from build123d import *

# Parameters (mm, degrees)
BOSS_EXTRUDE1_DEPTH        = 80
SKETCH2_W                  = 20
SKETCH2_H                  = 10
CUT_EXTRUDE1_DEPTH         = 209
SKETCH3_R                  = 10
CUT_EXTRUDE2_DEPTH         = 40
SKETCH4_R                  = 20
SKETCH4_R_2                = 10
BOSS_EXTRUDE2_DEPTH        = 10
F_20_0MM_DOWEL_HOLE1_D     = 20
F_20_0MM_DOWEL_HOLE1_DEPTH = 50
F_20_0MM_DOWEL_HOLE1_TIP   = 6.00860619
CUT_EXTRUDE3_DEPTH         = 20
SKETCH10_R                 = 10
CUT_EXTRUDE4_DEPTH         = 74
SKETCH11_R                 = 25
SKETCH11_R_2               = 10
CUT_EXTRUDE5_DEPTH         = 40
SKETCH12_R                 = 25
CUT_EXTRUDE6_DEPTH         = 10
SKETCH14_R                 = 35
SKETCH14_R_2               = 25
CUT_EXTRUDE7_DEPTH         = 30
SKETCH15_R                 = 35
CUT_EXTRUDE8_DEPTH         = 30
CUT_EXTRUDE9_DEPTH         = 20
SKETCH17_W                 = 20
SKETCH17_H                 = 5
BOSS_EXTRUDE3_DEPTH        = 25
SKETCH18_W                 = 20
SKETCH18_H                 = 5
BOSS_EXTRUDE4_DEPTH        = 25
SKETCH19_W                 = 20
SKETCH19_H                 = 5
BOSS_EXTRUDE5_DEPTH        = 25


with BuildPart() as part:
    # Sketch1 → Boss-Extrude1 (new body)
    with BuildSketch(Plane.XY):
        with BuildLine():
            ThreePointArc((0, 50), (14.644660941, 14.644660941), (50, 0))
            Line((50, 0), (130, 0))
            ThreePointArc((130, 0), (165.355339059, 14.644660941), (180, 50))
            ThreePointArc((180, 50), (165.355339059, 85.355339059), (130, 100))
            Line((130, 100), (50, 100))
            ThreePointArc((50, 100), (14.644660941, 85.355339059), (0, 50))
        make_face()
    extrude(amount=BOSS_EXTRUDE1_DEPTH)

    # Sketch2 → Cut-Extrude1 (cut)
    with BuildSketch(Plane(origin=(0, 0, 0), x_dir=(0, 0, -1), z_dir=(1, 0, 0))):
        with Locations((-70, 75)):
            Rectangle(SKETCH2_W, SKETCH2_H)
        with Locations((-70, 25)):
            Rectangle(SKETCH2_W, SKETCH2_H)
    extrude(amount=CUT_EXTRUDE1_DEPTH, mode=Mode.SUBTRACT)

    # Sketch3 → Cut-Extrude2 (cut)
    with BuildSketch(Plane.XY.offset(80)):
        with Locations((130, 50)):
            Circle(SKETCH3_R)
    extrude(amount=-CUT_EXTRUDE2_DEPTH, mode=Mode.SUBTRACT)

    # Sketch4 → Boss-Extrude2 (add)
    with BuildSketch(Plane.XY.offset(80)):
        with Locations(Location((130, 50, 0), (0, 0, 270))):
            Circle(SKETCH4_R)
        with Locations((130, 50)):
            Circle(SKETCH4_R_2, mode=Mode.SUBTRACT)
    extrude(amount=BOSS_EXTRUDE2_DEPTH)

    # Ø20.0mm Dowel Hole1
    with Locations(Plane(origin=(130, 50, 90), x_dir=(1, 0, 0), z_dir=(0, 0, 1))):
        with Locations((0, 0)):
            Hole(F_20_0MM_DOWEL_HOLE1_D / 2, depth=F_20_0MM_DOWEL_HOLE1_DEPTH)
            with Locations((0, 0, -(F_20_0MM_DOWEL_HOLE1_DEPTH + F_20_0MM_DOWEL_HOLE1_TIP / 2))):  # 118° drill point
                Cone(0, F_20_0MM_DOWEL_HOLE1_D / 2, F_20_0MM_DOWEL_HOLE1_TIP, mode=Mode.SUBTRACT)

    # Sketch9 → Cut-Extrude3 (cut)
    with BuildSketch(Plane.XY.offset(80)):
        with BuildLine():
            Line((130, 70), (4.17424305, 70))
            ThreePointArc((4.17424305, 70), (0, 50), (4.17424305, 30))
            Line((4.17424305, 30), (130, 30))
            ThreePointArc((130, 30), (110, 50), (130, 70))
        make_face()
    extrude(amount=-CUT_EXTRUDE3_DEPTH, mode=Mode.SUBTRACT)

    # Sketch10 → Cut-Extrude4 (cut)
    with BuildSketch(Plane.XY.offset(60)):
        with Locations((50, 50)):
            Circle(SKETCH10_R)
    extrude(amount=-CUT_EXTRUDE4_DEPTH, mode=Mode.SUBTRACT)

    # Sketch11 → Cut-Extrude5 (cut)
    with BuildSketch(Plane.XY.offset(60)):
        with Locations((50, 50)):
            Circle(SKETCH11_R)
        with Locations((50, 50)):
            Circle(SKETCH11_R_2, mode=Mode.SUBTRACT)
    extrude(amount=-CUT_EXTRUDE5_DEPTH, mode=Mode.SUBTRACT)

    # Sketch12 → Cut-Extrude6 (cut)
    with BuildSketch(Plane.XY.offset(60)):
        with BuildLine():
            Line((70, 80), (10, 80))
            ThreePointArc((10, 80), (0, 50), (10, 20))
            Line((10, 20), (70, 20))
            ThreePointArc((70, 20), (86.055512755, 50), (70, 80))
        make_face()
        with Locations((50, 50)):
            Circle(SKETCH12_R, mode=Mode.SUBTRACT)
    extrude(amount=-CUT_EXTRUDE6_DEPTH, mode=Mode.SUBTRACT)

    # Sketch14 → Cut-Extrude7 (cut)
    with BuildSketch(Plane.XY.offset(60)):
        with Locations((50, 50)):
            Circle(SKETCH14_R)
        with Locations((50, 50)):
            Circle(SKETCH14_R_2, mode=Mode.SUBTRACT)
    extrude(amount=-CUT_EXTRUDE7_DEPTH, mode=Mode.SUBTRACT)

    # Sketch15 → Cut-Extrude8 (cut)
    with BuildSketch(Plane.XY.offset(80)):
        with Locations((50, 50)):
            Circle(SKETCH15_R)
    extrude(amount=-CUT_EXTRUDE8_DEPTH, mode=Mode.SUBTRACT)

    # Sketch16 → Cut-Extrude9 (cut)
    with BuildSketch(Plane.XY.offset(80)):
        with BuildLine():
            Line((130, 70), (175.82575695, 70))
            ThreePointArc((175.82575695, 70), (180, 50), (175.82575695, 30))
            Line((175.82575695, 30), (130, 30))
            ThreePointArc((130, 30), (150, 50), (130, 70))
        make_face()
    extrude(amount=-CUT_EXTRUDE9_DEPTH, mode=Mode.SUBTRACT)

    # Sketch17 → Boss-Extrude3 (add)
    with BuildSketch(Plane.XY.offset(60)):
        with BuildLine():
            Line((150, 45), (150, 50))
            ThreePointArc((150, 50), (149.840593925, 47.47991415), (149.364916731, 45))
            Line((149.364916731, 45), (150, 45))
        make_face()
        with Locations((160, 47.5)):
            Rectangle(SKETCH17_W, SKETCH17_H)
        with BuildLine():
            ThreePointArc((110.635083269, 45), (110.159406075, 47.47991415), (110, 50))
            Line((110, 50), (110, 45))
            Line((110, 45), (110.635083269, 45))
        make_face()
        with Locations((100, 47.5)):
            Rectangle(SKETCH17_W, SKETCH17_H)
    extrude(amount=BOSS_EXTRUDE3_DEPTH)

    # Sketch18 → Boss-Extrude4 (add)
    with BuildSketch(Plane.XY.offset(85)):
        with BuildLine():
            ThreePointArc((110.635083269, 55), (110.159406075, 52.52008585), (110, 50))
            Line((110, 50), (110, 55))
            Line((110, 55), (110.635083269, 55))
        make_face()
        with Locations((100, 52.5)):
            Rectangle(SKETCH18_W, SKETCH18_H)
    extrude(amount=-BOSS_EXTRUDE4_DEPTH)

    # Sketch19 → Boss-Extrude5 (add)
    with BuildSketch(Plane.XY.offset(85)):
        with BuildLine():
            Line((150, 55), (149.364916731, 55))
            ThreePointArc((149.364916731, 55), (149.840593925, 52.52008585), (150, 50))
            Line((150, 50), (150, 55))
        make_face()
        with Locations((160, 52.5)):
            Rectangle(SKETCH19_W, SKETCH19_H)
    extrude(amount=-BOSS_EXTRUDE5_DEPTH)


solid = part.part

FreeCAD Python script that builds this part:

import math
import FreeCAD as App
import Part
import Sketcher
from FreeCAD import Vector
Q = App.Units.Quantity


def add_polygon(sketch, points):
    """Adds a closed chain of lines whose ends are joined by coincident constraints."""
    first, n = sketch.GeometryCount, len(points)
    for a, b in zip(points, points[1:] + points[:1]):
        sketch.addGeometry(Part.LineSegment(App.Vector(*a, 0), App.Vector(*b, 0)), False)
    for i in range(n):
        sketch.addConstraint(Sketcher.Constraint("Coincident", first + i, 2, first + (i + 1) % n, 1))

doc = App.newDocument("Part")
body = doc.addObject("PartDesign::Body", "Body")

sketch1 = body.newObject("Sketcher::SketchObject", "Sketch")
sketch1.AttachmentSupport = (doc.getObject("XY_Plane"), [""])
sketch1.MapMode = "FlatFace"
sketch1.addGeometry([
    Part.ArcOfCircle(Part.Circle(Vector(50, 50, 0), Vector(0, 0, 1), 50), math.radians(-180), math.radians(-90)),
    Part.LineSegment(Vector(50, 0, 0), Vector(130, 0, 0)),
    Part.ArcOfCircle(Part.Circle(Vector(130, 50, 0), Vector(0, 0, 1), 50), math.radians(-90), math.radians(0)),
    Part.ArcOfCircle(Part.Circle(Vector(130, 50, 0), Vector(0, 0, 1), 50), math.radians(0), math.radians(90)),
    Part.LineSegment(Vector(130, 100, 0), Vector(50, 100, 0)),
    Part.ArcOfCircle(Part.Circle(Vector(50, 50, 0), Vector(0, 0, 1), 50), math.radians(90), math.radians(180)),
], False)
sketch1.addConstraint([
    Sketcher.Constraint("Tangent", 0, 2, 1, 1),
    Sketcher.Constraint("Tangent", 1, 2, 2, 1),
    Sketcher.Constraint("Tangent", 2, 2, 3, 1),
    Sketcher.Constraint("Tangent", 3, 2, 4, 1),
    Sketcher.Constraint("Tangent", 4, 2, 5, 1),
    Sketcher.Constraint("Tangent", 5, 2, 0, 1),
    Sketcher.Constraint("Horizontal", 1),
    Sketcher.Constraint("Horizontal", 4),
    Sketcher.Constraint("Equal", 0, 2),
    Sketcher.Constraint("Equal", 2, 3),
    Sketcher.Constraint("PointOnObject", 0, 2, -1),
    Sketcher.Constraint("PointOnObject", 5, 2, -2),
    Sketcher.Constraint("Horizontal", 5, 3, 2, 2),
    Sketcher.Constraint("Horizontal", 2, 2, 5, 2),
    Sketcher.Constraint("Radius", 0, Q("50 mm")),
    Sketcher.Constraint("DistanceX", 1, 1, 1, 2, Q("80 mm")),
])
pad1 = body.newObject("PartDesign::Pad", "Pad")
pad1.Profile = sketch1
pad1.Length = 80

sketch2 = body.newObject("Sketcher::SketchObject", "Sketch001")
sketch2.AttachmentSupport = (doc.getObject("YZ_Plane"), [""])
sketch2.MapMode = "FlatFace"
add_polygon(sketch2, [(80, 80), (70, 80), (70, 60), (80, 60)])
add_polygon(sketch2, [(30, 80), (20, 80), (20, 60), (30, 60)])
sketch2.addConstraint([
    Sketcher.Constraint("Horizontal", 0),
    Sketcher.Constraint("Vertical", 1),
    Sketcher.Constraint("Horizontal", 2),
    Sketcher.Constraint("Vertical", 3),
    Sketcher.Constraint("Horizontal", 4),
    Sketcher.Constraint("Vertical", 5),
    Sketcher.Constraint("Horizontal", 6),
    Sketcher.Constraint("Vertical", 7),
    Sketcher.Constraint("Horizontal", 3, 2, 4, 2),
    Sketcher.Constraint("Horizontal", 2, 2, 5, 2),
    Sketcher.Constraint("Equal", 2, 4),
    Sketcher.Constraint("DistanceX", 0, 2, 0, 1, Q("10 mm")),
    Sketcher.Constraint("DistanceY", 1, 2, 1, 1, Q("20 mm")),
    Sketcher.Constraint("DistanceX", -1, 1, 0, 2, Q("70 mm")),
    Sketcher.Constraint("DistanceY", -1, 1, 0, 2, Q("80 mm")),
    Sketcher.Constraint("DistanceX", -1, 1, 4, 2, Q("20 mm")),
])
pocket1 = body.newObject("PartDesign::Pocket", "Pocket")
pocket1.Profile = sketch2
pocket1.Length = 209
pocket1.Reversed = True

sketch3 = body.newObject("Sketcher::SketchObject", "Sketch002")
sketch3.AttachmentSupport = (doc.getObject("XY_Plane"), [""])
sketch3.MapMode = "FlatFace"
sketch3.AttachmentOffset = App.Placement(Vector(0, 0, 80), App.Rotation())
sketch3.addGeometry(Part.Circle(Vector(130, 50, 0), Vector(0, 0, 1), 10), False)
sketch3.addConstraint([
    Sketcher.Constraint("Diameter", 0, Q("20 mm")),
    Sketcher.Constraint("DistanceX", -1, 1, 0, 3, Q("130 mm")),
    Sketcher.Constraint("DistanceY", -1, 1, 0, 3, Q("50 mm")),
])
pocket2 = body.newObject("PartDesign::Pocket", "Pocket001")
pocket2.Profile = sketch3
pocket2.Length = 40

sketch4 = body.newObject("Sketcher::SketchObject", "Sketch003")
sketch4.AttachmentSupport = (doc.getObject("XY_Plane"), [""])
sketch4.MapMode = "FlatFace"
sketch4.AttachmentOffset = App.Placement(Vector(0, 0, 80), App.Rotation())
sketch4.addGeometry([
    Part.Circle(Vector(130, 50, 0), Vector(0, 0, 1), 20),
    Part.Circle(Vector(130, 50, 0), Vector(0, 0, 1), 10),
], False)
sketch4.addConstraint([
    Sketcher.Constraint("Coincident", 1, 3, 0, 3),
    Sketcher.Constraint("Diameter", 0, Q("40 mm")),
    Sketcher.Constraint("Diameter", 1, Q("20 mm")),
    Sketcher.Constraint("DistanceX", -1, 1, 0, 3, Q("130 mm")),
    Sketcher.Constraint("DistanceY", -1, 1, 0, 3, Q("50 mm")),
])
pad2 = body.newObject("PartDesign::Pad", "Pad001")
pad2.Profile = sketch4
pad2.Length = 10

sketch5 = body.newObject("Sketcher::SketchObject", "Sketch004")
sketch5.AttachmentSupport = (doc.getObject("XY_Plane"), [""])
sketch5.MapMode = "FlatFace"
sketch5.AttachmentOffset = App.Placement(Vector(0, 0, 90), App.Rotation())
sketch5.addGeometry(Part.Circle(Vector(130, 50, 0), Vector(0, 0, 1), 10), False)
sketch5.addConstraint([
    Sketcher.Constraint("Diameter", 0, Q("20 mm")),
    Sketcher.Constraint("DistanceX", -1, 1, 0, 3, Q("130 mm")),
    Sketcher.Constraint("DistanceY", -1, 1, 0, 3, Q("50 mm")),
])
doc.recompute()
hole = body.newObject("PartDesign::Hole", "Hole")
hole.Profile = sketch5
hole.ThreadType = "None"
hole.Diameter = 20
hole.DepthType = "Dimension"
hole.Depth = 50
hole.DrillPoint = "Angled"
hole.DrillPointAngle = 118

sketch6 = body.newObject("Sketcher::SketchObject", "Sketch005")
sketch6.AttachmentSupport = (doc.getObject("XY_Plane"), [""])
sketch6.MapMode = "FlatFace"
sketch6.AttachmentOffset = App.Placement(Vector(0, 0, 80), App.Rotation())
sketch6.addGeometry([
    Part.LineSegment(Vector(130, 70, 0), Vector(4.174243, 70, 0)),
    Part.ArcOfCircle(Part.Circle(Vector(50, 50, 0), Vector(0, 0, 1), 50), math.radians(156.421822), math.radians(203.578178)),
    Part.LineSegment(Vector(4.174243, 30, 0), Vector(130, 30, 0)),
    Part.ArcOfCircle(Part.Circle(Vector(130, 50, 0), Vector(0, 0, 1), 20), math.radians(90), math.radians(270)),
], False)
sketch6.addConstraint([
    Sketcher.Constraint("Coincident", 0, 2, 1, 1),
    Sketcher.Constraint("Coincident", 1, 2, 2, 1),
    Sketcher.Constraint("Tangent", 2, 2, 3, 2),
    Sketcher.Constraint("Tangent", 3, 1, 0, 1),
    Sketcher.Constraint("Horizontal", 0),
    Sketcher.Constraint("Horizontal", 2),
    Sketcher.Constraint("Horizontal", 1, 3, 3, 3),
    Sketcher.Constraint("Radius", 1, Q("50 mm")),
    Sketcher.Constraint("Radius", 3, Q("20 mm")),
    Sketcher.Constraint("DistanceX", -1, 1, 1, 3, Q("50 mm")),
    Sketcher.Constraint("DistanceY", -1, 1, 1, 3, Q("50 mm")),
    Sketcher.Constraint("DistanceX", -1, 1, 3, 3, Q("130 mm")),
])
pocket3 = body.newObject("PartDesign::Pocket", "Pocket002")
pocket3.Profile = sketch6
pocket3.Length = 20

sketch7 = body.newObject("Sketcher::SketchObject", "Sketch006")
sketch7.AttachmentSupport = (doc.getObject("XY_Plane"), [""])
sketch7.MapMode = "FlatFace"
sketch7.AttachmentOffset = App.Placement(Vector(0, 0, 60), App.Rotation())
sketch7.addGeometry(Part.Circle(Vector(50, 50, 0), Vector(0, 0, 1), 10), False)
sketch7.addConstraint([
    Sketcher.Constraint("Diameter", 0, Q("20 mm")),
    Sketcher.Constraint("DistanceX", -1, 1, 0, 3, Q("50 mm")),
    Sketcher.Constraint("DistanceY", -1, 1, 0, 3, Q("50 mm")),
])
pocket4 = body.newObject("PartDesign::Pocket", "Pocket003")
pocket4.Profile = sketch7
pocket4.Length = 74

sketch8 = body.newObject("Sketcher::SketchObject", "Sketch007")
sketch8.AttachmentSupport = (doc.getObject("XY_Plane"), [""])
sketch8.MapMode = "FlatFace"
sketch8.AttachmentOffset = App.Placement(Vector(0, 0, 60), App.Rotation())
sketch8.addGeometry([
    Part.Circle(Vector(50, 50, 0), Vector(0, 0, 1), 25),
    Part.Circle(Vector(50, 50, 0), Vector(0, 0, 1), 10),
], False)
sketch8.addConstraint([
    Sketcher.Constraint("Coincident", 1, 3, 0, 3),
    Sketcher.Constraint("Diameter", 0, Q("50 mm")),
    Sketcher.Constraint("Diameter", 1, Q("20 mm")),
    Sketcher.Constraint("DistanceX", -1, 1, 0, 3, Q("50 mm")),
    Sketcher.Constraint("DistanceY", -1, 1, 0, 3, Q("50 mm")),
])
pocket5 = body.newObject("PartDesign::Pocket", "Pocket004")
pocket5.Profile = sketch8
pocket5.Length = 40

sketch9 = body.newObject("Sketcher::SketchObject", "Sketch008")
sketch9.AttachmentSupport = (doc.getObject("XY_Plane"), [""])
sketch9.MapMode = "FlatFace"
sketch9.AttachmentOffset = App.Placement(Vector(0, 0, 60), App.Rotation())
sketch9.addGeometry([
    Part.LineSegment(Vector(70, 80, 0), Vector(10, 80, 0)),
    Part.ArcOfCircle(Part.Circle(Vector(50, 50, 0), Vector(0, 0, 1), 50), math.radians(143.130102), math.radians(216.869898)),
    Part.LineSegment(Vector(10, 20, 0), Vector(70, 20, 0)),
    Part.ArcOfCircle(Part.Circle(Vector(50, 50, 0), Vector(0, 0, 1), 36.055513), math.radians(-56.309932), math.radians(56.309932)),
    Part.Circle(Vector(50, 50, 0), Vector(0, 0, 1), 25),
], False)
sketch9.addConstraint([
    Sketcher.Constraint("Coincident", 0, 2, 1, 1),
    Sketcher.Constraint("Coincident", 1, 2, 2, 1),
    Sketcher.Constraint("Coincident", 2, 2, 3, 1),
    Sketcher.Constraint("Coincident", 3, 2, 0, 1),
    Sketcher.Constraint("Horizontal", 0),
    Sketcher.Constraint("Horizontal", 2),
    Sketcher.Constraint("Coincident", 3, 3, 1, 3),
    Sketcher.Constraint("Coincident", 4, 3, 1, 3),
    Sketcher.Constraint("Vertical", 0, 2, 1, 2),
    Sketcher.Constraint("Diameter", 4, Q("50 mm")),
    Sketcher.Constraint("Radius", 1, Q("50 mm")),
    Sketcher.Constraint("DistanceX", 0, 2, 0, 1, Q("60 mm")),
    Sketcher.Constraint("DistanceX", -1, 1, 1, 3, Q("50 mm")),
    Sketcher.Constraint("DistanceY", -1, 1, 1, 3, Q("50 mm")),
    Sketcher.Constraint("DistanceX", -1, 1, 0, 2, Q("10 mm")),
])
pocket6 = body.newObject("PartDesign::Pocket", "Pocket005")
pocket6.Profile = sketch9
pocket6.Length = 10

sketch10 = body.newObject("Sketcher::SketchObject", "Sketch009")
sketch10.AttachmentSupport = (doc.getObject("XY_Plane"), [""])
sketch10.MapMode = "FlatFace"
sketch10.AttachmentOffset = App.Placement(Vector(0, 0, 60), App.Rotation())
sketch10.addGeometry([
    Part.Circle(Vector(50, 50, 0), Vector(0, 0, 1), 35),
    Part.Circle(Vector(50, 50, 0), Vector(0, 0, 1), 25),
], False)
sketch10.addConstraint([
    Sketcher.Constraint("Coincident", 1, 3, 0, 3),
    Sketcher.Constraint("Diameter", 0, Q("70 mm")),
    Sketcher.Constraint("Diameter", 1, Q("50 mm")),
    Sketcher.Constraint("DistanceX", -1, 1, 0, 3, Q("50 mm")),
    Sketcher.Constraint("DistanceY", -1, 1, 0, 3, Q("50 mm")),
])
pocket7 = body.newObject("PartDesign::Pocket", "Pocket006")
pocket7.Profile = sketch10
pocket7.Length = 30

sketch11 = body.newObject("Sketcher::SketchObject", "Sketch010")
sketch11.AttachmentSupport = (doc.getObject("XY_Plane"), [""])
sketch11.MapMode = "FlatFace"
sketch11.AttachmentOffset = App.Placement(Vector(0, 0, 80), App.Rotation())
sketch11.addGeometry(Part.Circle(Vector(50, 50, 0), Vector(0, 0, 1), 35), False)
sketch11.addConstraint([
    Sketcher.Constraint("Diameter", 0, Q("70 mm")),
    Sketcher.Constraint("DistanceX", -1, 1, 0, 3, Q("50 mm")),
    Sketcher.Constraint("DistanceY", -1, 1, 0, 3, Q("50 mm")),
])
pocket8 = body.newObject("PartDesign::Pocket", "Pocket007")
pocket8.Profile = sketch11
pocket8.Length = 30

sketch12 = body.newObject("Sketcher::SketchObject", "Sketch011")
sketch12.AttachmentSupport = (doc.getObject("XY_Plane"), [""])
sketch12.MapMode = "FlatFace"
sketch12.AttachmentOffset = App.Placement(Vector(0, 0, 80), App.Rotation())
sketch12.addGeometry([
    Part.LineSegment(Vector(175.825757, 70, 0), Vector(130, 70, 0)),
    Part.ArcOfCircle(Part.Circle(Vector(130, 50, 0), Vector(0, 0, 1), 20), math.radians(-90), math.radians(90)),
    Part.LineSegment(Vector(130, 30, 0), Vector(175.825757, 30, 0)),
    Part.ArcOfCircle(Part.Circle(Vector(130, 50, 0), Vector(0, 0, 1), 50), math.radians(-23.578178), math.radians(23.578178)),
], False)
sketch12.addConstraint([
    Sketcher.Constraint("Tangent", 0, 2, 1, 2),
    Sketcher.Constraint("Tangent", 1, 1, 2, 1),
    Sketcher.Constraint("Coincident", 2, 2, 3, 1),
    Sketcher.Constraint("Coincident", 3, 2, 0, 1),
    Sketcher.Constraint("Horizontal", 0),
    Sketcher.Constraint("Horizontal", 2),
    Sketcher.Constraint("Coincident", 3, 3, 1, 3),
    Sketcher.Constraint("Radius", 1, Q("20 mm")),
    Sketcher.Constraint("Radius", 3, Q("50 mm")),
    Sketcher.Constraint("DistanceX", -1, 1, 1, 3, Q("130 mm")),
    Sketcher.Constraint("DistanceY", -1, 1, 1, 3, Q("50 mm")),
])
pocket9 = body.newObject("PartDesign::Pocket", "Pocket008")
pocket9.Profile = sketch12
pocket9.Length = 20

sketch13 = body.newObject("Sketcher::SketchObject", "Sketch012")
sketch13.AttachmentSupport = (doc.getObject("XY_Plane"), [""])
sketch13.MapMode = "FlatFace"
sketch13.AttachmentOffset = App.Placement(Vector(0, 0, 60), App.Rotation())
sketch13.addGeometry([
    Part.ArcOfCircle(Part.Circle(Vector(130, 50, 0), Vector(0, 0, 1), 20), math.radians(-14.477512), math.radians(0)),
    Part.LineSegment(Vector(149.364917, 45, 0), Vector(170, 45, 0)),
    Part.LineSegment(Vector(170, 45, 0), Vector(170, 50, 0)),
    Part.LineSegment(Vector(170, 50, 0), Vector(150, 50, 0)),
    Part.ArcOfCircle(Part.Circle(Vector(130, 50, 0), Vector(0, 0, 1), 20), math.radians(-180), math.radians(-165.522488)),
    Part.LineSegment(Vector(110, 50, 0), Vector(90, 50, 0)),
    Part.LineSegment(Vector(90, 50, 0), Vector(90, 45, 0)),
    Part.LineSegment(Vector(90, 45, 0), Vector(110.635083, 45, 0)),
], False)
sketch13.addConstraint([
    Sketcher.Constraint("Coincident", 0, 1, 1, 1),
    Sketcher.Constraint("Coincident", 1, 2, 2, 1),
    Sketcher.Constraint("Coincident", 2, 2, 3, 1),
    Sketcher.Constraint("Coincident", 3, 2, 0, 2),
    Sketcher.Constraint("Coincident", 4, 1, 5, 1),
    Sketcher.Constraint("Coincident", 5, 2, 6, 1),
    Sketcher.Constraint("Coincident", 6, 2, 7, 1),
    Sketcher.Constraint("Coincident", 7, 2, 4, 2),
    Sketcher.Constraint("Horizontal", 1),
    Sketcher.Constraint("Vertical", 2),
    Sketcher.Constraint("Horizontal", 3),
    Sketcher.Constraint("Horizontal", 5),
    Sketcher.Constraint("Vertical", 6),
    Sketcher.Constraint("Horizontal", 7),
    Sketcher.Constraint("Coincident", 4, 3, 0, 3),
    Sketcher.Constraint("Equal", 0, 4),
    Sketcher.Constraint("Horizontal", 4, 3, 2, 2),
    Sketcher.Constraint("Horizontal", 3, 2, 4, 1),
    Sketcher.Constraint("Horizontal", 1, 2, 6, 2),
    Sketcher.Constraint("Equal", 3, 5),
    Sketcher.Constraint("Radius", 0, Q("20 mm")),
    Sketcher.Constraint("DistanceX", 3, 2, 3, 1, Q("20 mm")),
    Sketcher.Constraint("DistanceY", 2, 1, 2, 2, Q("5 mm")),
    Sketcher.Constraint("DistanceX", -1, 1, 0, 3, Q("130 mm")),
    Sketcher.Constraint("DistanceY", -1, 1, 0, 3, Q("50 mm")),
])
pad3 = body.newObject("PartDesign::Pad", "Pad002")
pad3.Profile = sketch13
pad3.Length = 25

sketch14 = body.newObject("Sketcher::SketchObject", "Sketch013")
sketch14.AttachmentSupport = (doc.getObject("XY_Plane"), [""])
sketch14.MapMode = "FlatFace"
sketch14.AttachmentOffset = App.Placement(Vector(0, 0, 85), App.Rotation())
sketch14.addGeometry([
    Part.ArcOfCircle(Part.Circle(Vector(130, 50, 0), Vector(0, 0, 1), 20), math.radians(165.522488), math.radians(180)),
    Part.LineSegment(Vector(110.635083, 55, 0), Vector(90, 55, 0)),
    Part.LineSegment(Vector(90, 55, 0), Vector(90, 50, 0)),
    Part.LineSegment(Vector(90, 50, 0), Vector(110, 50, 0)),
], False)
sketch14.addConstraint([
    Sketcher.Constraint("Coincident", 0, 1, 1, 1),
    Sketcher.Constraint("Coincident", 1, 2, 2, 1),
    Sketcher.Constraint("Coincident", 2, 2, 3, 1),
    Sketcher.Constraint("Coincident", 3, 2, 0, 2),
    Sketcher.Constraint("Horizontal", 1),
    Sketcher.Constraint("Vertical", 2),
    Sketcher.Constraint("Horizontal", 3),
    Sketcher.Constraint("Horizontal", 0, 3, 2, 2),
    Sketcher.Constraint("Radius", 0, Q("20 mm")),
    Sketcher.Constraint("DistanceX", 3, 1, 3, 2, Q("20 mm")),
    Sketcher.Constraint("DistanceY", 2, 2, 2, 1, Q("5 mm")),
    Sketcher.Constraint("DistanceX", -1, 1, 0, 3, Q("130 mm")),
    Sketcher.Constraint("DistanceY", -1, 1, 0, 3, Q("50 mm")),
])
pad4 = body.newObject("PartDesign::Pad", "Pad003")
pad4.Profile = sketch14
pad4.Length = 25
pad4.Reversed = True

sketch15 = body.newObject("Sketcher::SketchObject", "Sketch014")
sketch15.AttachmentSupport = (doc.getObject("XY_Plane"), [""])
sketch15.MapMode = "FlatFace"
sketch15.AttachmentOffset = App.Placement(Vector(0, 0, 85), App.Rotation())
sketch15.addGeometry([
    Part.ArcOfCircle(Part.Circle(Vector(130, 50, 0), Vector(0, 0, 1), 20), math.radians(0), math.radians(14.477512)),
    Part.LineSegment(Vector(150, 50, 0), Vector(170, 50, 0)),
    Part.LineSegment(Vector(170, 50, 0), Vector(170, 55, 0)),
    Part.LineSegment(Vector(170, 55, 0), Vector(149.364917, 55, 0)),
], False)
sketch15.addConstraint([
    Sketcher.Constraint("Coincident", 0, 1, 1, 1),
    Sketcher.Constraint("Coincident", 1, 2, 2, 1),
    Sketcher.Constraint("Coincident", 2, 2, 3, 1),
    Sketcher.Constraint("Coincident", 3, 2, 0, 2),
    Sketcher.Constraint("Horizontal", 1),
    Sketcher.Constraint("Vertical", 2),
    Sketcher.Constraint("Horizontal", 3),
    Sketcher.Constraint("Radius", 0, Q("20 mm")),
    Sketcher.Constraint("DistanceX", 1, 1, 1, 2, Q("20 mm")),
    Sketcher.Constraint("DistanceY", 2, 1, 2, 2, Q("5 mm")),
    Sketcher.Constraint("DistanceX", -1, 1, 0, 3, Q("130 mm")),
    Sketcher.Constraint("DistanceY", -1, 1, 0, 3, Q("50 mm")),
    Sketcher.Constraint("DistanceY", -1, 1, 0, 1, Q("50 mm")),
])
pad5 = body.newObject("PartDesign::Pad", "Pad004")
pad5.Profile = sketch15
pad5.Length = 25
pad5.Reversed = True

doc.recompute()
